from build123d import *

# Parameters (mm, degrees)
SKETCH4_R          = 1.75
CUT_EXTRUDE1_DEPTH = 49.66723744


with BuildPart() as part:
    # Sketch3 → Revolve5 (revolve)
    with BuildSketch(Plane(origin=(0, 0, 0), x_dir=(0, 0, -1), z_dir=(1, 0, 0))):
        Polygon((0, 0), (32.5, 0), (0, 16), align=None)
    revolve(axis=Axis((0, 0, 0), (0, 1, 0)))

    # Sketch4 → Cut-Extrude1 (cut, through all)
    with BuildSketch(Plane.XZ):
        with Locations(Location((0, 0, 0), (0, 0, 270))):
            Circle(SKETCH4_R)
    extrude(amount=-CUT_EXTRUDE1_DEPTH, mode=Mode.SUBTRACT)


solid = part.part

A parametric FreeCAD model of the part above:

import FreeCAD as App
import Part
import Sketcher

V = App.Vector
Q = App.Units.Quantity


def add_polygon(sketch, points):
    """Adds a closed chain of lines whose ends are joined by coincident constraints."""
    first, n = sketch.GeometryCount, len(points)
    for a, b in zip(points, points[1:] + points[:1]):
        sketch.addGeometry(Part.LineSegment(App.Vector(*a, 0), App.Vector(*b, 0)), False)
    for i in range(n):
        sketch.addConstraint(Sketcher.Constraint("Coincident", first + i, 2, first + (i + 1) % n, 1))

doc = App.newDocument("Part")
params = doc.addObject("Spreadsheet::Sheet", "Params")
for row, (alias, value) in enumerate([
    ("sketch1_width", "16 mm"),
    ("sketch1_height", "32.5 mm"),
    ("revolution_angle", "360 deg"),
    ("sketch2_diameter", "3.5 mm"),
], start=1):
    params.set(f"A{row}", alias)
    params.set(f"B{row}", "=" + value)
    params.setAlias(f"B{row}", alias)

body = doc.addObject("PartDesign::Body", "Body")

# Sketch on YZ plane
sketch1 = body.newObject("Sketcher::SketchObject", "Sketch")
sketch1.AttachmentSupport = (doc.getObject("YZ_Plane"), [""])
sketch1.MapMode = "FlatFace"
add_polygon(sketch1, [(0, 0), (0, -32.5), (16, 0)])  # lines 0-2
sketch1.addConstraint(Sketcher.Constraint("Vertical", 0))
sketch1.addConstraint(Sketcher.Constraint("Horizontal", 2))
sketch1.addConstraint(Sketcher.Constraint("Coincident", 2, 2, -1, 1))
sketch1.addConstraint(Sketcher.Constraint("DistanceX", 2, 2, 2, 1, Q("16 mm")))
sketch1.addConstraint(Sketcher.Constraint("DistanceY", 0, 2, 0, 1, Q("32.5 mm")))
sketch1.setExpression("Constraints[6]", "Params.sketch1_width")
sketch1.setExpression("Constraints[7]", "Params.sketch1_height")
revolution = body.newObject("PartDesign::Revolution", "Revolution")
revolution.Profile = sketch1
revolution.ReferenceAxis = (sketch1, ["H_Axis"])
revolution.setExpression("Angle", "Params.revolution_angle")

# Sketch on XZ plane
sketch2 = body.newObject("Sketcher::SketchObject", "Sketch001")
sketch2.AttachmentSupport = (doc.getObject("XZ_Plane"), [""])
sketch2.MapMode = "FlatFace"
sketch2.addGeometry(Part.Circle(V(0, 0, 0), V(0, 0, 1), 1.75), False)
sketch2.addConstraint(Sketcher.Constraint("Coincident", 0, 3, -1, 1))
sketch2.addConstraint(Sketcher.Constraint("Diameter", 0, Q("3.5 mm")))
sketch2.setExpression("Constraints[1]", "Params.sketch2_diameter")
pocket1 = body.newObject("PartDesign::Pocket", "Pocket")
pocket1.Profile = sketch2
pocket1.Type = "ThroughAll"

doc.recompute()
